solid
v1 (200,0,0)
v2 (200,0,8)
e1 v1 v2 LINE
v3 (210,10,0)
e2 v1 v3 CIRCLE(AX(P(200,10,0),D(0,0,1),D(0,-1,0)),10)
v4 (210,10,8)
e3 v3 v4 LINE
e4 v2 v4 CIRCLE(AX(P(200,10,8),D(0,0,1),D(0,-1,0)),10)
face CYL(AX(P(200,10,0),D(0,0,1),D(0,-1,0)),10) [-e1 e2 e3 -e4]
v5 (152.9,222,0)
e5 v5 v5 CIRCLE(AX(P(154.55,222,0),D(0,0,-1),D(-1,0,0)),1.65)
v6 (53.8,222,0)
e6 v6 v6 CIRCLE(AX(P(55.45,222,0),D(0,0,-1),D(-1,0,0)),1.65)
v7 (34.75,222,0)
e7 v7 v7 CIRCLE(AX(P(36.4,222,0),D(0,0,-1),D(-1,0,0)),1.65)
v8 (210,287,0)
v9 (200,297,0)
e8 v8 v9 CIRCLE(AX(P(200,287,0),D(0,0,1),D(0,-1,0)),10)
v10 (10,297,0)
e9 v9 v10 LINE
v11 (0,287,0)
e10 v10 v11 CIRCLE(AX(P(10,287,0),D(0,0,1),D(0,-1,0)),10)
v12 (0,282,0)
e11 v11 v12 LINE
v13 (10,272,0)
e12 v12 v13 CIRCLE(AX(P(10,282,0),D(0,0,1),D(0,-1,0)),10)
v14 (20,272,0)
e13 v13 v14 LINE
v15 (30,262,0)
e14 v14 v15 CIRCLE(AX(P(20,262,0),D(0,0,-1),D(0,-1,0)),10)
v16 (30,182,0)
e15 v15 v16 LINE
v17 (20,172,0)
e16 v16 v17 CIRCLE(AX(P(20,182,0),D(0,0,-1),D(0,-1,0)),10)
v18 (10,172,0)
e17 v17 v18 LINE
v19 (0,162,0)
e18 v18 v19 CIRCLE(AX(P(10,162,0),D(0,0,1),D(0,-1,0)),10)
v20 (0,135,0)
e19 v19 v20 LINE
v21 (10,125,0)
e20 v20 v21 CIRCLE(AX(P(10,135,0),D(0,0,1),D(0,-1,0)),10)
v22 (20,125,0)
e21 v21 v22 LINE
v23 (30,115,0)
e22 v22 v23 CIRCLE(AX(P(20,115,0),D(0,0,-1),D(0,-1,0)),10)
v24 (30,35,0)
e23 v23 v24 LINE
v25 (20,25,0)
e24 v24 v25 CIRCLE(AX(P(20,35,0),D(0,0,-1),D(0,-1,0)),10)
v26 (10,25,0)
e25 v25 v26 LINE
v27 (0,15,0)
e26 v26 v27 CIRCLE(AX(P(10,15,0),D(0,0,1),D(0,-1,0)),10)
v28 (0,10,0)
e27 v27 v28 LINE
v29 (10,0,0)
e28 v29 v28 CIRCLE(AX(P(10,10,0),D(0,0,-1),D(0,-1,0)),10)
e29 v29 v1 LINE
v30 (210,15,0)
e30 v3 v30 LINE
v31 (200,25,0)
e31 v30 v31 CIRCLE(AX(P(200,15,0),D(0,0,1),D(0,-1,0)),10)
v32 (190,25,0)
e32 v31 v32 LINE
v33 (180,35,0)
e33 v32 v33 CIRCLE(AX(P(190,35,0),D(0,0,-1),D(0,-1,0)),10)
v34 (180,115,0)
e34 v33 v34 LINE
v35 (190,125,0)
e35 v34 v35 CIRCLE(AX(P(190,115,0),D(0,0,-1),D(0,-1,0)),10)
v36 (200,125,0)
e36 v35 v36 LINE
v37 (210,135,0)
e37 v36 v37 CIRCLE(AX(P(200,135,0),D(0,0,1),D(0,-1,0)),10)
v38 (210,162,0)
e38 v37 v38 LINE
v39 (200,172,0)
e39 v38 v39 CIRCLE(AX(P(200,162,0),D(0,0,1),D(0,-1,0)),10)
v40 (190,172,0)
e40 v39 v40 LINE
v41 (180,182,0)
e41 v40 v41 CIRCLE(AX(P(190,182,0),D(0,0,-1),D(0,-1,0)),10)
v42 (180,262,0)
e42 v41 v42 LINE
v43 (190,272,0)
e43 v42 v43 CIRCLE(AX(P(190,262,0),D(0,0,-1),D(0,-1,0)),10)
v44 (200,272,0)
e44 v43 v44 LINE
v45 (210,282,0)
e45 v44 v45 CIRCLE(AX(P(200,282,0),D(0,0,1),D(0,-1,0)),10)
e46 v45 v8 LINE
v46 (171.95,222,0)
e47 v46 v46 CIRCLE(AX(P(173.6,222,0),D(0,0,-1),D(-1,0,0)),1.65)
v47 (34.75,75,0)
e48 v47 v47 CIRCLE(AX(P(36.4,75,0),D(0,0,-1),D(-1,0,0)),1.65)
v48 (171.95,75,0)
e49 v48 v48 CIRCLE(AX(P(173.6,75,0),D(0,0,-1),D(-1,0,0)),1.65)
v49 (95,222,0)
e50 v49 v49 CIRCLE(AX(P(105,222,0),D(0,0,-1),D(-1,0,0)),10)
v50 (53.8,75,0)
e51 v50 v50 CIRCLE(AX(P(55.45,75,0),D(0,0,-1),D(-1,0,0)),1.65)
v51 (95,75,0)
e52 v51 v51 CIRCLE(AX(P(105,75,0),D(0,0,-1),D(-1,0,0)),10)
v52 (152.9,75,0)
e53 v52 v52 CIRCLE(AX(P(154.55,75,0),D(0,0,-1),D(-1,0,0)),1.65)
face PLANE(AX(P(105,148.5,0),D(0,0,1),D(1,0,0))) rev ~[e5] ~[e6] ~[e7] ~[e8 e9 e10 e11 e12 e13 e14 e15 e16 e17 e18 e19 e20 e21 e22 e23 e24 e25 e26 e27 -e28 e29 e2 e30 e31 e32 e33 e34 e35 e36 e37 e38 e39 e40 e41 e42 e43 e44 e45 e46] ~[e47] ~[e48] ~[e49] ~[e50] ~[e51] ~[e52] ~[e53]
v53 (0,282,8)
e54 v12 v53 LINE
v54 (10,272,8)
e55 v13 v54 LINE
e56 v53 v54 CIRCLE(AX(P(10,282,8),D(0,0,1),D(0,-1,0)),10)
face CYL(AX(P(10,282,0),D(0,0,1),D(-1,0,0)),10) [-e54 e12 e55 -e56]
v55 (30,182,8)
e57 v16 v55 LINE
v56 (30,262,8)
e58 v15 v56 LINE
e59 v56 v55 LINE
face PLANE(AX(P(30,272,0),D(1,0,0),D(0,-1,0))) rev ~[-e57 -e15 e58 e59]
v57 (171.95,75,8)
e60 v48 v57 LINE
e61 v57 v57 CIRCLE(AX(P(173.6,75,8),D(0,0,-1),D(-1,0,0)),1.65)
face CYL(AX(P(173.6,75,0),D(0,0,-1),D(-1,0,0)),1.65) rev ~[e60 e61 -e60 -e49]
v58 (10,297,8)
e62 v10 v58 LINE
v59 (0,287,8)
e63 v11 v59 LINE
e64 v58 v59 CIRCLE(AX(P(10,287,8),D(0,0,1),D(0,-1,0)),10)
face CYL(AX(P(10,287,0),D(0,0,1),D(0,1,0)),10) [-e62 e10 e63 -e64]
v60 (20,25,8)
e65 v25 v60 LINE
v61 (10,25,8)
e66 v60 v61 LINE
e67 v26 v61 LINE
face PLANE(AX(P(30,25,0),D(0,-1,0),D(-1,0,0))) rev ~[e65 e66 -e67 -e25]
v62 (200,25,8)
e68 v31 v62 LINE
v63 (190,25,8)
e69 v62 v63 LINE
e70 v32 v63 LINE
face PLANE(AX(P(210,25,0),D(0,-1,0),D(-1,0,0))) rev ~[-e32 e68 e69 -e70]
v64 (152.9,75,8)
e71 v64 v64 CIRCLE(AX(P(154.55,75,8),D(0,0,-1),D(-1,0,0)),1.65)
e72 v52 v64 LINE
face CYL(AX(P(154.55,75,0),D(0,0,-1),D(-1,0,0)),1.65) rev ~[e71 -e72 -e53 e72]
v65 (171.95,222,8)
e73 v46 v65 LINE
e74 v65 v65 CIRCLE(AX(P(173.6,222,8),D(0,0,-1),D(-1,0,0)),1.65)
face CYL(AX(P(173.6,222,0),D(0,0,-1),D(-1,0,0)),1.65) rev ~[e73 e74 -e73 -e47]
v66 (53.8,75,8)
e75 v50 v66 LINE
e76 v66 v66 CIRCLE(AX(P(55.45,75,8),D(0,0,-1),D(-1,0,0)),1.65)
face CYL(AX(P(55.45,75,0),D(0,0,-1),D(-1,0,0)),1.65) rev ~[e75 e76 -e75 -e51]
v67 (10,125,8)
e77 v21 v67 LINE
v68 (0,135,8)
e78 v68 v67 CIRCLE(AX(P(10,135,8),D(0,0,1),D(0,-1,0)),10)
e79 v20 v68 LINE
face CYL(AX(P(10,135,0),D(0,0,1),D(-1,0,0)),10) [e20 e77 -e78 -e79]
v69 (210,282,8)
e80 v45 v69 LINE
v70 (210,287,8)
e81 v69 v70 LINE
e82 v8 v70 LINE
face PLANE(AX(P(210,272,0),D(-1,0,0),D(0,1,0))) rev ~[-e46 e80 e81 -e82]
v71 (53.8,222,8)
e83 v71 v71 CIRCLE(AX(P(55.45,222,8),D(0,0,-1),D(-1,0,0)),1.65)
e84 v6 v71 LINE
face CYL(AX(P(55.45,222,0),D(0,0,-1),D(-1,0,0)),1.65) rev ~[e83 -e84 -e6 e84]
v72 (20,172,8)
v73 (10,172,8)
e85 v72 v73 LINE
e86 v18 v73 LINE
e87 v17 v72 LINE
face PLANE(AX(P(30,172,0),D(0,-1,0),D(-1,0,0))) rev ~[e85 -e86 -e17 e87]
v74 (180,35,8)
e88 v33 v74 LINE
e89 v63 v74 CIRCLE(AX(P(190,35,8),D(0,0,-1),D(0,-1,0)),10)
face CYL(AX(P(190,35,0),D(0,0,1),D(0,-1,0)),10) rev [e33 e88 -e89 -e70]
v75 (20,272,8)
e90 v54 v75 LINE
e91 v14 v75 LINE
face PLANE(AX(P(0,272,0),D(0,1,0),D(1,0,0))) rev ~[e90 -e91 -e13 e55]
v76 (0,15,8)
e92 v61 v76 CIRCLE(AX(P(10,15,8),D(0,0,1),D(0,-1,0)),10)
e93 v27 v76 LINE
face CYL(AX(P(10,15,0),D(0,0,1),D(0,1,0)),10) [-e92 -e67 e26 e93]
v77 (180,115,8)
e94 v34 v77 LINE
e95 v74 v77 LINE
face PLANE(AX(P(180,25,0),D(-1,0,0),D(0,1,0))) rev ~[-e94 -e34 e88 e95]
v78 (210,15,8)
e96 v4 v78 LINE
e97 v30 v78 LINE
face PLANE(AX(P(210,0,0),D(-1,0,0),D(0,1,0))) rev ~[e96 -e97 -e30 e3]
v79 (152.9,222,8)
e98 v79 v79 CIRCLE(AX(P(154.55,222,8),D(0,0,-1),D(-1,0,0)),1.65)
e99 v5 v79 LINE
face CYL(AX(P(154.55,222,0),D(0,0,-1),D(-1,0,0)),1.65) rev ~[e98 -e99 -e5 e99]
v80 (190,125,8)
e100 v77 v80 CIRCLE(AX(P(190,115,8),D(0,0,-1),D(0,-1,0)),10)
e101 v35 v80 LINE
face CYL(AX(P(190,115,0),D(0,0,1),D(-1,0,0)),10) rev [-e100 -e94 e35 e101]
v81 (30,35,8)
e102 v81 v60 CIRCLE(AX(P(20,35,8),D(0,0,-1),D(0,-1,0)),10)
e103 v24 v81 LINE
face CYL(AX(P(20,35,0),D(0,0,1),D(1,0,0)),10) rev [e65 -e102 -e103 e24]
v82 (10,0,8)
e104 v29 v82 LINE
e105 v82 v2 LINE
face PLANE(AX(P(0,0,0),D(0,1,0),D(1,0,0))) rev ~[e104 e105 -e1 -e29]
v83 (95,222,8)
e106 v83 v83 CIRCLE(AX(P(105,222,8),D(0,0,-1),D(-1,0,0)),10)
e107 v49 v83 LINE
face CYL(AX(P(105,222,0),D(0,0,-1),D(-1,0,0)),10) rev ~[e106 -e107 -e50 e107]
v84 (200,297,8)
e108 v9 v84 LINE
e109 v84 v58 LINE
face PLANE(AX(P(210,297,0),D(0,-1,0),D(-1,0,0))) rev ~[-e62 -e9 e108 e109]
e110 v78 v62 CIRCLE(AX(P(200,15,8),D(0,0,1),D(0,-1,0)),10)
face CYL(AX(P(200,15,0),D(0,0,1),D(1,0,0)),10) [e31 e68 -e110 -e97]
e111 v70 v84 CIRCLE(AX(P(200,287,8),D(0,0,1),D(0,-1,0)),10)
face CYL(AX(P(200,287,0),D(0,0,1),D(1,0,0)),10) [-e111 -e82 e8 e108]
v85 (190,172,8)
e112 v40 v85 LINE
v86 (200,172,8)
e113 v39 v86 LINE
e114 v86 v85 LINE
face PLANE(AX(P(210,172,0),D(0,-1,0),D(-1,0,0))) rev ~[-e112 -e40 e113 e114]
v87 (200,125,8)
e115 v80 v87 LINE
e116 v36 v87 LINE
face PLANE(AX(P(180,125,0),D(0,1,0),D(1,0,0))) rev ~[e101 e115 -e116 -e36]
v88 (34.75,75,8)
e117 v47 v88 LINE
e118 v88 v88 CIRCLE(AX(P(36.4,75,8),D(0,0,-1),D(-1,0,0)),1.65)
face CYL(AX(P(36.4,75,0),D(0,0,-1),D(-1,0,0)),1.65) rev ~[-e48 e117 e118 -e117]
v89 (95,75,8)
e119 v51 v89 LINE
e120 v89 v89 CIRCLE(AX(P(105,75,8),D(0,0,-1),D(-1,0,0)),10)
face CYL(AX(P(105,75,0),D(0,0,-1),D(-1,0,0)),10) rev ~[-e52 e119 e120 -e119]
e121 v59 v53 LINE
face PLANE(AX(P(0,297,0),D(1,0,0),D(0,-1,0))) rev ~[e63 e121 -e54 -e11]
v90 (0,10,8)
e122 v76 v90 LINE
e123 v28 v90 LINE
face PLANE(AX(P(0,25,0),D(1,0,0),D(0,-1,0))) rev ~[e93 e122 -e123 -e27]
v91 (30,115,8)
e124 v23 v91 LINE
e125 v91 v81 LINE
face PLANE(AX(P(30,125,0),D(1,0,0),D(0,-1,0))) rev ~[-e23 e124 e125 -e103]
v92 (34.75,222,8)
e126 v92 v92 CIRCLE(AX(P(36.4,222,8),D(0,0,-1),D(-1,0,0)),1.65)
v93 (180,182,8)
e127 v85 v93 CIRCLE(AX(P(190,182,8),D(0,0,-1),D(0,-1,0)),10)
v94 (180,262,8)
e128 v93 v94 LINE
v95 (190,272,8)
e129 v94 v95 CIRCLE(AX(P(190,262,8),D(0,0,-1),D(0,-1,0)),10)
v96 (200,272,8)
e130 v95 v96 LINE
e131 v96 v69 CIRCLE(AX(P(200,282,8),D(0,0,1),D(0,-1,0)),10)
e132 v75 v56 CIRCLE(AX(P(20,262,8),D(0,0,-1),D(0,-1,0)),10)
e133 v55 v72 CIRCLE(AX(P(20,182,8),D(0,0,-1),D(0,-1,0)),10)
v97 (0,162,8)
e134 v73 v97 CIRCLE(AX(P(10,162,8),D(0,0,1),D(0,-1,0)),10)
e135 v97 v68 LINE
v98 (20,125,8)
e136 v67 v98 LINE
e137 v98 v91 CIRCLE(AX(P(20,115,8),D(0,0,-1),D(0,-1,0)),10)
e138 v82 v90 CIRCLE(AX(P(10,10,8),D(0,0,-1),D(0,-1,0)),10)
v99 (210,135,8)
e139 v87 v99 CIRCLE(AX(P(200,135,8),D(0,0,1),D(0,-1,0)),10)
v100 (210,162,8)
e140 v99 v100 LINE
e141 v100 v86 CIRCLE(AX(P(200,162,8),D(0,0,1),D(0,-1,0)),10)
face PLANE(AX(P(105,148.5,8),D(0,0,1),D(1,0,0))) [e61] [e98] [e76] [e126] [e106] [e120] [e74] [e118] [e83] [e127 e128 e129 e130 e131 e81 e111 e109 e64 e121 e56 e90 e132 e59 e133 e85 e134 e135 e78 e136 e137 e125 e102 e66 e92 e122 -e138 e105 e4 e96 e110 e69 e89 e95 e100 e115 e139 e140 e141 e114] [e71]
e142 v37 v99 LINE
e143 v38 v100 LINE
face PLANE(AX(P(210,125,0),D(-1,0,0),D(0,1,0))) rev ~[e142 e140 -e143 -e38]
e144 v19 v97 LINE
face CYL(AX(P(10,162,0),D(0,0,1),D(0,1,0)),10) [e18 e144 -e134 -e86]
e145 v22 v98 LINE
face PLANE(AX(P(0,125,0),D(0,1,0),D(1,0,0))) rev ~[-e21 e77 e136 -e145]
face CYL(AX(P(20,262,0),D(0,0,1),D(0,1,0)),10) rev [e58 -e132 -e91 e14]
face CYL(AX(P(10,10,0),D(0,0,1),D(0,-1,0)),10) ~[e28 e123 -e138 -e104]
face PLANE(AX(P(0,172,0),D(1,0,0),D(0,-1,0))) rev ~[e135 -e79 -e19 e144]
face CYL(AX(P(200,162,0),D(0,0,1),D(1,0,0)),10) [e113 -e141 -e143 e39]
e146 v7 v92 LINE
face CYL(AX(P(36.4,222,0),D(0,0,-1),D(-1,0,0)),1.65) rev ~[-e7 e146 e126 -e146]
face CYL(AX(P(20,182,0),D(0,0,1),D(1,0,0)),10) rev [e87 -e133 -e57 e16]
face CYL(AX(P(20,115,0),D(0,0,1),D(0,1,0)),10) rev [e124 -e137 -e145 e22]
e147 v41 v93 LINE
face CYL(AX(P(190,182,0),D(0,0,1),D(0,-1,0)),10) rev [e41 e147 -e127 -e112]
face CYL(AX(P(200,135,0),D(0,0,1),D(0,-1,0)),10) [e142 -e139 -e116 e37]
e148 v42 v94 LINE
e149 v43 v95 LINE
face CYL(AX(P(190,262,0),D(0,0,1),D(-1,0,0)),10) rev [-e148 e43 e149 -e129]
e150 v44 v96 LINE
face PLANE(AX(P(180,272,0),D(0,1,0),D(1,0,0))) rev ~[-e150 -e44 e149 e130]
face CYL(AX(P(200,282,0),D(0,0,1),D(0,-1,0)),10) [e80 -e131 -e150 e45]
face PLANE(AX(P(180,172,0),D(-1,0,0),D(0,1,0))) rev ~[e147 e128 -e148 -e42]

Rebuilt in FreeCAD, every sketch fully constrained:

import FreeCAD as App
import Part
import Sketcher

V = App.Vector


def edges_at(feature, points):
    """Names of the edges that pass closest to the given points."""
    edges = feature.Shape.Edges
    near = lambda p: min(range(len(edges)), key=lambda i: edges[i].distToShape(Part.Vertex(*p))[0])
    return sorted({f"Edge{near(p) + 1}" for p in points})


def add_polygon(sketch, points):
    """Adds a closed chain of lines whose ends are joined by coincident constraints."""
    first, n = sketch.GeometryCount, len(points)
    for a, b in zip(points, points[1:] + points[:1]):
        sketch.addGeometry(Part.LineSegment(App.Vector(*a, 0), App.Vector(*b, 0)), False)
    for i in range(n):
        sketch.addConstraint(Sketcher.Constraint("Coincident", first + i, 2, first + (i + 1) % n, 1))

doc = App.newDocument("Part")
body = doc.addObject("PartDesign::Body", "Body")

# Sketch on XY plane
sketch1 = body.newObject("Sketcher::SketchObject", "Sketch")
sketch1.AttachmentSupport = (doc.getObject("XY_Plane"), [""])
sketch1.MapMode = "FlatFace"
add_polygon(sketch1, [(0, 0), (210, 0), (210, 25), (180, 25), (180, 125), (210, 125), (210, 172), (180, 172), (180, 272), (210, 272), (210, 297), (0, 297), (0, 272), (30, 272), (30, 172), (0, 172), (0, 125), (30, 125), (30, 25), (0, 25)])  # lines 0-19
sketch1.addConstraint([
    Sketcher.Constraint("Horizontal", 0),
    Sketcher.Constraint("Vertical", 1),
    Sketcher.Constraint("Horizontal", 2),
    Sketcher.Constraint("Vertical", 3),
    Sketcher.Constraint("Horizontal", 4),
    Sketcher.Constraint("Vertical", 5),
    Sketcher.Constraint("Horizontal", 6),
    Sketcher.Constraint("Vertical", 7),
    Sketcher.Constraint("Horizontal", 8),
    Sketcher.Constraint("Vertical", 9),
    Sketcher.Constraint("Horizontal", 10),
    Sketcher.Constraint("Vertical", 11),
    Sketcher.Constraint("Horizontal", 12),
    Sketcher.Constraint("Vertical", 13),
    Sketcher.Constraint("Horizontal", 14),
    Sketcher.Constraint("Vertical", 15),
    Sketcher.Constraint("Horizontal", 16),
    Sketcher.Constraint("Vertical", 17),
    Sketcher.Constraint("Horizontal", 18),
    Sketcher.Constraint("Vertical", 19),
    Sketcher.Constraint("Coincident", 19, 2, -1, 1),
    Sketcher.Constraint("PointOnObject", 10, 2, -2),
    Sketcher.Constraint("PointOnObject", 14, 2, -2),
    Sketcher.Constraint("Horizontal", 8, 2, 11, 2),
    Sketcher.Constraint("Horizontal", 6, 2, 13, 2),
    Sketcher.Constraint("Horizontal", 4, 2, 15, 2),
    Sketcher.Constraint("Horizontal", 2, 2, 17, 2),
    Sketcher.Constraint("Vertical", 1, 2, 4, 2),
    Sketcher.Constraint("Vertical", 3, 2, 6, 2),
    Sketcher.Constraint("Vertical", 5, 2, 8, 2),
    Sketcher.Constraint("Vertical", 13, 2, 16, 2),
    Sketcher.Constraint("Equal", 8, 12),
    Sketcher.Constraint("Equal", 3, 7),
    Sketcher.Constraint("Equal", 1, 9),
    Sketcher.Constraint("DistanceX", 0, 1, 0, 2, 210.0),
    Sketcher.Constraint("DistanceX", 2, 2, 2, 1, 30.0),
    Sketcher.Constraint("DistanceY", 1, 1, 1, 2, 25.0),
    Sketcher.Constraint("DistanceY", 3, 1, 3, 2, 100.0),
    Sketcher.Constraint("DistanceY", 5, 1, 5, 2, 47.0),
])
pad1 = body.newObject("PartDesign::Pad", "Pad")
pad1.Profile = sketch1
pad1.Length = 8
doc.recompute()

fillet = body.newObject("PartDesign::Fillet", "Fillet")
fillet.Base = (pad1, edges_at(pad1, [
    (0, 25, 4),
    (30, 25, 4),
    (30, 125, 4),
    (0, 125, 4),
    (0, 172, 4),
    (30, 172, 4),
    (30, 272, 4),
    (0, 272, 4),
    (0, 297, 4),
    (210, 297, 4),
    (210, 272, 4),
    (180, 272, 4),
    (180, 172, 4),
    (210, 172, 4),
    (210, 125, 4),
    (180, 125, 4),
    (180, 25, 4),
    (210, 25, 4),
    (210, 0, 4),
    (0, 0, 4),
]))
fillet.Radius = 10

# Sketch on XY plane
sketch2 = body.newObject("Sketcher::SketchObject", "Sketch001")
sketch2.AttachmentSupport = (doc.getObject("XY_Plane"), [""])
sketch2.MapMode = "FlatFace"
sketch2.addGeometry([
    Part.Circle(V(173.6, 222, 0), V(0, 0, 1), 1.6),  # 0
    Part.Circle(V(36.4, 222, 0), V(0, 0, 1), 1.6),  # 1
    Part.Circle(V(55.5, 222, 0), V(0, 0, 1), 1.6),  # 2
    Part.Circle(V(154.6, 222, 0), V(0, 0, 1), 1.6),  # 3
    Part.Circle(V(173.6, 75, 0), V(0, 0, 1), 1.6),  # 4
    Part.Circle(V(154.6, 75, 0), V(0, 0, 1), 1.6),  # 5
    Part.Circle(V(55.5, 75, 0), V(0, 0, 1), 1.6),  # 6
    Part.Circle(V(36.4, 75, 0), V(0, 0, 1), 1.6),  # 7
    Part.Circle(V(105, 75, 0), V(0, 0, 1), 10),  # 8
    Part.Circle(V(105, 222, 0), V(0, 0, 1), 10),  # 9
], False)
sketch2.addConstraint([
    Sketcher.Constraint("Equal", 0, 1),
    Sketcher.Constraint("Equal", 1, 2),
    Sketcher.Constraint("Equal", 2, 3),
    Sketcher.Constraint("Equal", 3, 4),
    Sketcher.Constraint("Equal", 4, 5),
    Sketcher.Constraint("Equal", 5, 6),
    Sketcher.Constraint("Equal", 6, 7),
    Sketcher.Constraint("Equal", 8, 9),
    Sketcher.Constraint("Horizontal", 0, 3, 1, 3),
    Sketcher.Constraint("Horizontal", 1, 3, 2, 3),
    Sketcher.Constraint("Horizontal", 2, 3, 3, 3),
    Sketcher.Constraint("Horizontal", 4, 3, 5, 3),
    Sketcher.Constraint("Horizontal", 5, 3, 6, 3),
    Sketcher.Constraint("Horizontal", 6, 3, 7, 3),
    Sketcher.Constraint("Horizontal", 7, 3, 8, 3),
    Sketcher.Constraint("Horizontal", 3, 3, 9, 3),
    Sketcher.Constraint("Vertical", 0, 3, 4, 3),
    Sketcher.Constraint("Vertical", 3, 3, 5, 3),
    Sketcher.Constraint("Vertical", 2, 3, 6, 3),
    Sketcher.Constraint("Vertical", 1, 3, 7, 3),
    Sketcher.Constraint("Vertical", 8, 3, 9, 3),
    Sketcher.Constraint("Diameter", 8, 20.0),
    Sketcher.Constraint("Diameter", 0, 3.3),
    Sketcher.Constraint("DistanceY", -1, 1, 0, 3, 222.0),
    Sketcher.Constraint("DistanceY", -1, 1, 4, 3, 75.0),
    Sketcher.Constraint("DistanceX", -1, 1, 8, 3, 105.0),
    Sketcher.Constraint("DistanceX", -1, 1, 0, 3, 173.6),
    Sketcher.Constraint("DistanceX", -1, 1, 1, 3, 36.4),
    Sketcher.Constraint("DistanceX", 2, 3, 3, 3, 99.1),
    Sketcher.Constraint("DistanceX", -1, 1, 2, 3, 55.45),
])
pocket1 = body.newObject("PartDesign::Pocket", "Pocket")
pocket1.Profile = sketch2
pocket1.Length = 8
pocket1.Reversed = True

doc.recompute()
